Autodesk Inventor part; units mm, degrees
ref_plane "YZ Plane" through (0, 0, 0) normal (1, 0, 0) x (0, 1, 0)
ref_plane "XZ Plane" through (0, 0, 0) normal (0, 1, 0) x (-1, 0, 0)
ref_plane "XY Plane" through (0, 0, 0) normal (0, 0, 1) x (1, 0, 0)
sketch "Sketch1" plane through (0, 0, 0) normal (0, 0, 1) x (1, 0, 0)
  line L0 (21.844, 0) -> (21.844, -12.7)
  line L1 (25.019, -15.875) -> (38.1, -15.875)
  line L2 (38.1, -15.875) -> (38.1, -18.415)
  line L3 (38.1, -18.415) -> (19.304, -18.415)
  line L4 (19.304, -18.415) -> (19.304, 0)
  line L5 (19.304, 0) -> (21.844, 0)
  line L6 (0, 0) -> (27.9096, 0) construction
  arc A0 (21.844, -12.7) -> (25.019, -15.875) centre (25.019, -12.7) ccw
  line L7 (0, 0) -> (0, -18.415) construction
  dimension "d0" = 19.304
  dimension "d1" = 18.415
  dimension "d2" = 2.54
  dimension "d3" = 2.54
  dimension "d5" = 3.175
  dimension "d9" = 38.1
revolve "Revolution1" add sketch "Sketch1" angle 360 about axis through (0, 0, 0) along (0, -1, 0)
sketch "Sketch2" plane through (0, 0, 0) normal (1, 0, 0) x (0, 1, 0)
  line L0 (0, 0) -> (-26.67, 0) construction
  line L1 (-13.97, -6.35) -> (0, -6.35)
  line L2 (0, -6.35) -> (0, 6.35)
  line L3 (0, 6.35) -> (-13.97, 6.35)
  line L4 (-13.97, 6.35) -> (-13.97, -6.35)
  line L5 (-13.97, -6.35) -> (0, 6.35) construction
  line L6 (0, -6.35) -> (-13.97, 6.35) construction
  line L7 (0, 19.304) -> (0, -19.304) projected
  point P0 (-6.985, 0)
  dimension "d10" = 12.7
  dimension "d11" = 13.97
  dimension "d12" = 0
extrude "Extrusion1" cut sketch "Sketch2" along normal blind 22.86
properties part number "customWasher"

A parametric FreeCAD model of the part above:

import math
import FreeCAD as App
import Part
import Sketcher

V = App.Vector
Q = App.Units.Quantity

doc = App.newDocument("Part")
body = doc.addObject("PartDesign::Body", "Body")

sketch1 = doc.addObject("Sketcher::SketchObject", "Sketch")
body.addObject(sketch1)
sketch1.AttachmentSupport = (doc.XY_Plane, [""])
sketch1.MapMode = "FlatFace"
sketch1.addGeometry([
    Part.LineSegment(V(21.844, -12.7, 0), V(21.844, 0, 0)),
    Part.LineSegment(V(21.844, 0, 0), V(19.304, 0, 0)),
    Part.LineSegment(V(19.304, 0, 0), V(19.304, -18.415, 0)),
    Part.LineSegment(V(19.304, -18.415, 0), V(38.1, -18.415, 0)),
    Part.LineSegment(V(38.1, -18.415, 0), V(38.1, -15.875, 0)),
    Part.LineSegment(V(38.1, -15.875, 0), V(25.019, -15.875, 0)),
    Part.ArcOfCircle(Part.Circle(V(25.019, -12.7, 0), V(0, 0, 1), 3.175), math.radians(180), math.radians(270)),
], False)
sketch1.addConstraint([
    Sketcher.Constraint("Coincident", 0, 2, 1, 1),
    Sketcher.Constraint("Coincident", 1, 2, 2, 1),
    Sketcher.Constraint("Coincident", 2, 2, 3, 1),
    Sketcher.Constraint("Coincident", 3, 2, 4, 1),
    Sketcher.Constraint("Coincident", 4, 2, 5, 1),
    Sketcher.Constraint("Tangent", 5, 2, 6, 2),
    Sketcher.Constraint("Tangent", 6, 1, 0, 1),
    Sketcher.Constraint("Vertical", 0),
    Sketcher.Constraint("Horizontal", 1),
    Sketcher.Constraint("Vertical", 2),
    Sketcher.Constraint("Horizontal", 3),
    Sketcher.Constraint("Vertical", 4),
    Sketcher.Constraint("Horizontal", 5),
    Sketcher.Constraint("PointOnObject", 0, 2, -1),
    Sketcher.Constraint("Equal", 1, 4),
    Sketcher.Constraint("DistanceX", 1, 2, 1, 1, Q("0.1 in")),
    Sketcher.Constraint("Radius", 6, Q("0.125 in")),
    Sketcher.Constraint("DistanceX", -1, 1, 3, 2, Q("1.5 in")),
    Sketcher.Constraint("DistanceY", 2, 2, 2, 1, Q("0.725 in")),
    Sketcher.Constraint("DistanceX", -1, 1, 1, 2, Q("0.76 in")),
])
revolution = doc.addObject("PartDesign::Revolution", "Revolution")
body.addObject(revolution)
revolution.Profile = sketch1
revolution.ReferenceAxis = (sketch1, ["V_Axis"])
revolution.Angle = 360

sketch2 = doc.addObject("Sketcher::SketchObject", "Sketch001")
body.addObject(sketch2)
sketch2.AttachmentSupport = (doc.YZ_Plane, [""])
sketch2.MapMode = "FlatFace"
sketch2.addGeometry([
    Part.LineSegment(V(-13.97, 6.35, 0), V(-13.97, -6.35, 0)),
    Part.LineSegment(V(-13.97, -6.35, 0), V(0, -6.35, 0)),
    Part.LineSegment(V(0, -6.35, 0), V(0, 6.35, 0)),
    Part.LineSegment(V(0, 6.35, 0), V(-13.97, 6.35, 0)),
], False)
sketch2.addConstraint([
    Sketcher.Constraint("Coincident", 0, 2, 1, 1),
    Sketcher.Constraint("Coincident", 1, 2, 2, 1),
    Sketcher.Constraint("Coincident", 2, 2, 3, 1),
    Sketcher.Constraint("Coincident", 3, 2, 0, 1),
    Sketcher.Constraint("Vertical", 0),
    Sketcher.Constraint("Horizontal", 1),
    Sketcher.Constraint("Vertical", 2),
    Sketcher.Constraint("Horizontal", 3),
    Sketcher.Constraint("Symmetric", 1, 2, 2, 2, -1, 1),
    Sketcher.Constraint("DistanceY", 0, 2, 0, 1, Q("0.5 in")),
    Sketcher.Constraint("DistanceX", 1, 1, 1, 2, Q("0.55 in")),
])
pocket1 = doc.addObject("PartDesign::Pocket", "Pocket")
body.addObject(pocket1)
pocket1.Profile = sketch2
pocket1.Length = Q("0.9 in")
pocket1.Reversed = True

doc.recompute()
